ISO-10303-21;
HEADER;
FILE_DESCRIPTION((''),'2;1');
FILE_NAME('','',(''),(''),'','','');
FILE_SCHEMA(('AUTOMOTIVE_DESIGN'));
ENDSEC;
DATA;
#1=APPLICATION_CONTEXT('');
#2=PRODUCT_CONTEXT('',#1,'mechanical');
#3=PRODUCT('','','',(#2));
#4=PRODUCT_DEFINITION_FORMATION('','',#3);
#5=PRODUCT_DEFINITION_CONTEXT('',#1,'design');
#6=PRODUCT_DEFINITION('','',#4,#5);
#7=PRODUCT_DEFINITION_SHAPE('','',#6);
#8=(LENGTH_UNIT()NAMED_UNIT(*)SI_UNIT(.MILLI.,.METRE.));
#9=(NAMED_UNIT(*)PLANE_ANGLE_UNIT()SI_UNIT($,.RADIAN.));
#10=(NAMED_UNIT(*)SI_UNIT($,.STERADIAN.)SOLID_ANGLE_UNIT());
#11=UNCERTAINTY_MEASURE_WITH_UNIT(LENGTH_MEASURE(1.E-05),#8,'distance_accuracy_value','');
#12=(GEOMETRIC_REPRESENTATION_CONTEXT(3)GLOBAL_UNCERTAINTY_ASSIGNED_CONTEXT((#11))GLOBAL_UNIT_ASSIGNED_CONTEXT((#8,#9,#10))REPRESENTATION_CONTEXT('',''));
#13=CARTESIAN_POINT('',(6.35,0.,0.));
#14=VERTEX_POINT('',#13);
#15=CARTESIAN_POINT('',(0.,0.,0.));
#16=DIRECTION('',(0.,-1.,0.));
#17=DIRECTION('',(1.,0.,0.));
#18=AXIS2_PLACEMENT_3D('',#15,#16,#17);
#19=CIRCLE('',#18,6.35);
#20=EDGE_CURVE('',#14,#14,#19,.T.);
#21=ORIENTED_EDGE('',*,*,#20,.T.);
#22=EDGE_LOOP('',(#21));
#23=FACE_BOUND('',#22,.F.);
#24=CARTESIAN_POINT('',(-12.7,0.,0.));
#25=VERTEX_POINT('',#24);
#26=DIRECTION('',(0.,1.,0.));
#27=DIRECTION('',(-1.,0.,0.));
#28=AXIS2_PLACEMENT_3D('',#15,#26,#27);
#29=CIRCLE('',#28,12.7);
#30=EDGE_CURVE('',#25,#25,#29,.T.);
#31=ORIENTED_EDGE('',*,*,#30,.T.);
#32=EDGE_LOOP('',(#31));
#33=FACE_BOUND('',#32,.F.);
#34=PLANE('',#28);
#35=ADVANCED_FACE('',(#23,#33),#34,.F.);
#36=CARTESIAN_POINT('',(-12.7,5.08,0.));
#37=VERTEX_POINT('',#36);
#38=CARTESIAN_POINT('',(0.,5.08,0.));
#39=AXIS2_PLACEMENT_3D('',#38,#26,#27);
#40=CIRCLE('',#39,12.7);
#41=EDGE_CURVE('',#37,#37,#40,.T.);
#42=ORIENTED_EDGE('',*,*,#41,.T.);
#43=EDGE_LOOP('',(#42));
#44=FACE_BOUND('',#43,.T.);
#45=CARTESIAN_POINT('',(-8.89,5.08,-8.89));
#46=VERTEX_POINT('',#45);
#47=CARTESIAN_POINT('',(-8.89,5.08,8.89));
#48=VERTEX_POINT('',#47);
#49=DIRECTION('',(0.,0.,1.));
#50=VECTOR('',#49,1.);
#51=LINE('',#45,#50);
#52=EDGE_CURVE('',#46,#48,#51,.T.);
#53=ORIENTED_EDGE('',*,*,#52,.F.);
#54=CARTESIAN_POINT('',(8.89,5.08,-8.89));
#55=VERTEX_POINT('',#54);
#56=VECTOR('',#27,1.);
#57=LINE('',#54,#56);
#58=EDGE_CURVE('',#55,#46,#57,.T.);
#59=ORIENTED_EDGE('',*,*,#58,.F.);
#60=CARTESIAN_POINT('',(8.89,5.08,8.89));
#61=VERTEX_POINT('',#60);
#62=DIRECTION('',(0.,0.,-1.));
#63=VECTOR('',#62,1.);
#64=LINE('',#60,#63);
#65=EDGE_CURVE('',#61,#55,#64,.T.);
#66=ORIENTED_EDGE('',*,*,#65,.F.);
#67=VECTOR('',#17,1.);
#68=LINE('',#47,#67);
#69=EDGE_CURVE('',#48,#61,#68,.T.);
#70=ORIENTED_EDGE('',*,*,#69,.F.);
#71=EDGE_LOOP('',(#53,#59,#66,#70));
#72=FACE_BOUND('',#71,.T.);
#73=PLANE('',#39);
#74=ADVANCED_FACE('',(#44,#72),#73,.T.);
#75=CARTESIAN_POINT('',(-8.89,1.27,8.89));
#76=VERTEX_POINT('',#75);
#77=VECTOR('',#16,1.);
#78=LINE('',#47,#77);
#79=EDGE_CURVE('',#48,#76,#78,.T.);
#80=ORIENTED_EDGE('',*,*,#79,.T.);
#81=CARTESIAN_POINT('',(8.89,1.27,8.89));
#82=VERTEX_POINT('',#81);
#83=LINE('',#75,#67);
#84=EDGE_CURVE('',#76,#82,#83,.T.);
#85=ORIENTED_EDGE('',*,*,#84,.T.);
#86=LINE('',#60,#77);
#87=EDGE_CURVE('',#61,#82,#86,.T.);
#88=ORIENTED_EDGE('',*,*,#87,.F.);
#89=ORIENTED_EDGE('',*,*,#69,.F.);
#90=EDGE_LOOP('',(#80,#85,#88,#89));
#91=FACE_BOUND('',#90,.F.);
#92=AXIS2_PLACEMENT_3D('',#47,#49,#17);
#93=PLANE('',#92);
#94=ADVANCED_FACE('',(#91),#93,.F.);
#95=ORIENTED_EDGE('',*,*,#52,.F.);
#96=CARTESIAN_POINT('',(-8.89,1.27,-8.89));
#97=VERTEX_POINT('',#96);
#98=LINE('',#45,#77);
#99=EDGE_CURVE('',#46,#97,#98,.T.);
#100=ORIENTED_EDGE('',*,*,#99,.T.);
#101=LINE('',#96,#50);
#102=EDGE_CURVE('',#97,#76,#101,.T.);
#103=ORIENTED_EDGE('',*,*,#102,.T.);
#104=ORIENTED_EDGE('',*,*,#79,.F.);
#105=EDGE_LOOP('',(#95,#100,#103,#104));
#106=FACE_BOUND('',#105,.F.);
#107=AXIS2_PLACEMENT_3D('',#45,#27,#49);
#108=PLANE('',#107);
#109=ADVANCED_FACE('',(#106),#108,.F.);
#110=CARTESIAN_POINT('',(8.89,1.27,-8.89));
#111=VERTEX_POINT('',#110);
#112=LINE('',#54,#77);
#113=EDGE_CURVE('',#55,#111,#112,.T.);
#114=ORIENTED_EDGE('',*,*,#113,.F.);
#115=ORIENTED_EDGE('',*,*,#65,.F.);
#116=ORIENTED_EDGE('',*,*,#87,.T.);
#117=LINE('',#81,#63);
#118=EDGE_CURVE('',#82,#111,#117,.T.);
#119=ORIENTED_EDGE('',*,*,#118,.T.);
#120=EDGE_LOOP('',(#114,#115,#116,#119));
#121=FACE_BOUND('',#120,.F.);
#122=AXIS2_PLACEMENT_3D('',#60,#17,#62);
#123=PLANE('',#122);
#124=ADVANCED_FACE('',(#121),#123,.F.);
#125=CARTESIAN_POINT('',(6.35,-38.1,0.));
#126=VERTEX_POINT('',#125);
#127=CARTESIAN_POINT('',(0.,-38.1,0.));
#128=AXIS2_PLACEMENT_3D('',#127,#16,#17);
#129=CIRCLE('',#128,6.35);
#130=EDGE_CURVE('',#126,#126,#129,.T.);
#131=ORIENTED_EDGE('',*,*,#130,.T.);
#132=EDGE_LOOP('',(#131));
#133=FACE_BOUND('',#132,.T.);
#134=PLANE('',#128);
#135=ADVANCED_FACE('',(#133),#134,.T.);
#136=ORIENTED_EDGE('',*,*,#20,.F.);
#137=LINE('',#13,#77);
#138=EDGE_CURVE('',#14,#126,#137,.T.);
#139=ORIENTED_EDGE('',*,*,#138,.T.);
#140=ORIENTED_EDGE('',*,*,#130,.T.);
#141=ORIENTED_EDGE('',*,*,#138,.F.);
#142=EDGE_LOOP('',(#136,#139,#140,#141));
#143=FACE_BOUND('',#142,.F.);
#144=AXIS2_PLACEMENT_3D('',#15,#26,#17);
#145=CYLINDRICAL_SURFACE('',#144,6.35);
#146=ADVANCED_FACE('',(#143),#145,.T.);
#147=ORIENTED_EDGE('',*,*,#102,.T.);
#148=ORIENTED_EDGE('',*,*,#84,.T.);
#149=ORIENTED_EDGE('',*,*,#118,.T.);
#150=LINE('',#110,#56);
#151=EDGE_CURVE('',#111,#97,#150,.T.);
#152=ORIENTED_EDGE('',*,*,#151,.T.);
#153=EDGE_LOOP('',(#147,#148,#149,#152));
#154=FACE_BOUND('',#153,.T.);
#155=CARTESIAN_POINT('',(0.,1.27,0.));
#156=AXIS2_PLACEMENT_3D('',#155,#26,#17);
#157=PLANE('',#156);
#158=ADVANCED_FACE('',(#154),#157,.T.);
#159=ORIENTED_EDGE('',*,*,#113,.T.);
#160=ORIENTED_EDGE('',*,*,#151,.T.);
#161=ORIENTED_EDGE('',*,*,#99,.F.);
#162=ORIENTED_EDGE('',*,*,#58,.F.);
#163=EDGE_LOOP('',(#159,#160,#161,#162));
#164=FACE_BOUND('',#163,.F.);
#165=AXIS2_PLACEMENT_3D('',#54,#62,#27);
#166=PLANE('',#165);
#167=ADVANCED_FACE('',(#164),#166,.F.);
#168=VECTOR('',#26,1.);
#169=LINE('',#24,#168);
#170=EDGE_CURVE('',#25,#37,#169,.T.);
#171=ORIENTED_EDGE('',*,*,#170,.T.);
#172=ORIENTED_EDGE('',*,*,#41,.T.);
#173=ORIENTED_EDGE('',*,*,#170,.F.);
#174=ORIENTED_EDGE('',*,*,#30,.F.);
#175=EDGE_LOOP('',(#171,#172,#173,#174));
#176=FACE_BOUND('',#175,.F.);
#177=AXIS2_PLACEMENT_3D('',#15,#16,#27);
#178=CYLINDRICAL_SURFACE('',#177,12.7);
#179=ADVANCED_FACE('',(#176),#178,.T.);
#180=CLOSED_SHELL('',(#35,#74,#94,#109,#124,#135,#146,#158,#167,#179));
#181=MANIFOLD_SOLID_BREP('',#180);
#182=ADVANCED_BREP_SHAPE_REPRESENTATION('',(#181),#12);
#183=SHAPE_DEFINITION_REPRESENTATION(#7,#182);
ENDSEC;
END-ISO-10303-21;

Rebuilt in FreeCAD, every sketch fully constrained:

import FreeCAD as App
import Part
import Sketcher
from FreeCAD import Vector
Q = App.Units.Quantity


def add_polygon(sketch, points):
    """Adds a closed chain of lines whose ends are joined by coincident constraints."""
    first, n = sketch.GeometryCount, len(points)
    for a, b in zip(points, points[1:] + points[:1]):
        sketch.addGeometry(Part.LineSegment(App.Vector(*a, 0), App.Vector(*b, 0)), False)
    for i in range(n):
        sketch.addConstraint(Sketcher.Constraint("Coincident", first + i, 2, first + (i + 1) % n, 1))

doc = App.newDocument("Part")
body = doc.addObject("PartDesign::Body", "Body")

sketch1 = body.newObject("Sketcher::SketchObject", "Sketch")
sketch1.AttachmentSupport = (doc.getObject("XZ_Plane"), [""])
sketch1.MapMode = "FlatFace"
sketch1.addGeometry(Part.Circle(Vector(0, 0, 0), Vector(0, 0, 1), 13), False)
sketch1.addConstraint([
    Sketcher.Constraint("Coincident", 0, 3, -1, 1),
    Sketcher.Constraint("Diameter", 0, Q("1 in")),
])
pad1 = body.newObject("PartDesign::Pad", "Pad")
pad1.Profile = sketch1
pad1.Length = Q("0.2 in")
pad1.Reversed = True

sketch2 = body.newObject("Sketcher::SketchObject", "Sketch001")
sketch2.AttachmentSupport = (doc.getObject("XZ_Plane"), [""])
sketch2.MapMode = "FlatFace"
sketch2.AttachmentOffset = App.Placement(Vector(0, 0, -0.2 * 25.4), App.Rotation())
add_polygon(sketch2, [(-9, -9), (-9, 9), (9, 9), (9, -9)])
sketch2.addConstraint([
    Sketcher.Constraint("Vertical", 0),
    Sketcher.Constraint("Horizontal", 1),
    Sketcher.Constraint("Vertical", 2),
    Sketcher.Constraint("Horizontal", 3),
    Sketcher.Constraint("Symmetric", 0, 2, 2, 2, -1, 1),
    Sketcher.Constraint("Equal", 3, 0),
    Sketcher.Constraint("DistanceX", 1, 1, 1, 2, Q("0.7 in")),
])
pocket1 = body.newObject("PartDesign::Pocket", "Pocket")
pocket1.Profile = sketch2
pocket1.Length = Q("0.15 in")
pocket1.Reversed = True

sketch3 = body.newObject("Sketcher::SketchObject", "Sketch002")
sketch3.AttachmentSupport = (doc.getObject("XZ_Plane"), [""])
sketch3.MapMode = "FlatFace"
sketch3.addGeometry(Part.Circle(Vector(0, 0, 0), Vector(0, 0, 1), 6), False)
sketch3.addConstraint([
    Sketcher.Constraint("Coincident", 0, 3, -1, 1),
    Sketcher.Constraint("Diameter", 0, Q("0.5 in")),
])
pad2 = body.newObject("PartDesign::Pad", "Pad001")
pad2.Profile = sketch3
pad2.Length = Q("1.5 in")

doc.recompute()
